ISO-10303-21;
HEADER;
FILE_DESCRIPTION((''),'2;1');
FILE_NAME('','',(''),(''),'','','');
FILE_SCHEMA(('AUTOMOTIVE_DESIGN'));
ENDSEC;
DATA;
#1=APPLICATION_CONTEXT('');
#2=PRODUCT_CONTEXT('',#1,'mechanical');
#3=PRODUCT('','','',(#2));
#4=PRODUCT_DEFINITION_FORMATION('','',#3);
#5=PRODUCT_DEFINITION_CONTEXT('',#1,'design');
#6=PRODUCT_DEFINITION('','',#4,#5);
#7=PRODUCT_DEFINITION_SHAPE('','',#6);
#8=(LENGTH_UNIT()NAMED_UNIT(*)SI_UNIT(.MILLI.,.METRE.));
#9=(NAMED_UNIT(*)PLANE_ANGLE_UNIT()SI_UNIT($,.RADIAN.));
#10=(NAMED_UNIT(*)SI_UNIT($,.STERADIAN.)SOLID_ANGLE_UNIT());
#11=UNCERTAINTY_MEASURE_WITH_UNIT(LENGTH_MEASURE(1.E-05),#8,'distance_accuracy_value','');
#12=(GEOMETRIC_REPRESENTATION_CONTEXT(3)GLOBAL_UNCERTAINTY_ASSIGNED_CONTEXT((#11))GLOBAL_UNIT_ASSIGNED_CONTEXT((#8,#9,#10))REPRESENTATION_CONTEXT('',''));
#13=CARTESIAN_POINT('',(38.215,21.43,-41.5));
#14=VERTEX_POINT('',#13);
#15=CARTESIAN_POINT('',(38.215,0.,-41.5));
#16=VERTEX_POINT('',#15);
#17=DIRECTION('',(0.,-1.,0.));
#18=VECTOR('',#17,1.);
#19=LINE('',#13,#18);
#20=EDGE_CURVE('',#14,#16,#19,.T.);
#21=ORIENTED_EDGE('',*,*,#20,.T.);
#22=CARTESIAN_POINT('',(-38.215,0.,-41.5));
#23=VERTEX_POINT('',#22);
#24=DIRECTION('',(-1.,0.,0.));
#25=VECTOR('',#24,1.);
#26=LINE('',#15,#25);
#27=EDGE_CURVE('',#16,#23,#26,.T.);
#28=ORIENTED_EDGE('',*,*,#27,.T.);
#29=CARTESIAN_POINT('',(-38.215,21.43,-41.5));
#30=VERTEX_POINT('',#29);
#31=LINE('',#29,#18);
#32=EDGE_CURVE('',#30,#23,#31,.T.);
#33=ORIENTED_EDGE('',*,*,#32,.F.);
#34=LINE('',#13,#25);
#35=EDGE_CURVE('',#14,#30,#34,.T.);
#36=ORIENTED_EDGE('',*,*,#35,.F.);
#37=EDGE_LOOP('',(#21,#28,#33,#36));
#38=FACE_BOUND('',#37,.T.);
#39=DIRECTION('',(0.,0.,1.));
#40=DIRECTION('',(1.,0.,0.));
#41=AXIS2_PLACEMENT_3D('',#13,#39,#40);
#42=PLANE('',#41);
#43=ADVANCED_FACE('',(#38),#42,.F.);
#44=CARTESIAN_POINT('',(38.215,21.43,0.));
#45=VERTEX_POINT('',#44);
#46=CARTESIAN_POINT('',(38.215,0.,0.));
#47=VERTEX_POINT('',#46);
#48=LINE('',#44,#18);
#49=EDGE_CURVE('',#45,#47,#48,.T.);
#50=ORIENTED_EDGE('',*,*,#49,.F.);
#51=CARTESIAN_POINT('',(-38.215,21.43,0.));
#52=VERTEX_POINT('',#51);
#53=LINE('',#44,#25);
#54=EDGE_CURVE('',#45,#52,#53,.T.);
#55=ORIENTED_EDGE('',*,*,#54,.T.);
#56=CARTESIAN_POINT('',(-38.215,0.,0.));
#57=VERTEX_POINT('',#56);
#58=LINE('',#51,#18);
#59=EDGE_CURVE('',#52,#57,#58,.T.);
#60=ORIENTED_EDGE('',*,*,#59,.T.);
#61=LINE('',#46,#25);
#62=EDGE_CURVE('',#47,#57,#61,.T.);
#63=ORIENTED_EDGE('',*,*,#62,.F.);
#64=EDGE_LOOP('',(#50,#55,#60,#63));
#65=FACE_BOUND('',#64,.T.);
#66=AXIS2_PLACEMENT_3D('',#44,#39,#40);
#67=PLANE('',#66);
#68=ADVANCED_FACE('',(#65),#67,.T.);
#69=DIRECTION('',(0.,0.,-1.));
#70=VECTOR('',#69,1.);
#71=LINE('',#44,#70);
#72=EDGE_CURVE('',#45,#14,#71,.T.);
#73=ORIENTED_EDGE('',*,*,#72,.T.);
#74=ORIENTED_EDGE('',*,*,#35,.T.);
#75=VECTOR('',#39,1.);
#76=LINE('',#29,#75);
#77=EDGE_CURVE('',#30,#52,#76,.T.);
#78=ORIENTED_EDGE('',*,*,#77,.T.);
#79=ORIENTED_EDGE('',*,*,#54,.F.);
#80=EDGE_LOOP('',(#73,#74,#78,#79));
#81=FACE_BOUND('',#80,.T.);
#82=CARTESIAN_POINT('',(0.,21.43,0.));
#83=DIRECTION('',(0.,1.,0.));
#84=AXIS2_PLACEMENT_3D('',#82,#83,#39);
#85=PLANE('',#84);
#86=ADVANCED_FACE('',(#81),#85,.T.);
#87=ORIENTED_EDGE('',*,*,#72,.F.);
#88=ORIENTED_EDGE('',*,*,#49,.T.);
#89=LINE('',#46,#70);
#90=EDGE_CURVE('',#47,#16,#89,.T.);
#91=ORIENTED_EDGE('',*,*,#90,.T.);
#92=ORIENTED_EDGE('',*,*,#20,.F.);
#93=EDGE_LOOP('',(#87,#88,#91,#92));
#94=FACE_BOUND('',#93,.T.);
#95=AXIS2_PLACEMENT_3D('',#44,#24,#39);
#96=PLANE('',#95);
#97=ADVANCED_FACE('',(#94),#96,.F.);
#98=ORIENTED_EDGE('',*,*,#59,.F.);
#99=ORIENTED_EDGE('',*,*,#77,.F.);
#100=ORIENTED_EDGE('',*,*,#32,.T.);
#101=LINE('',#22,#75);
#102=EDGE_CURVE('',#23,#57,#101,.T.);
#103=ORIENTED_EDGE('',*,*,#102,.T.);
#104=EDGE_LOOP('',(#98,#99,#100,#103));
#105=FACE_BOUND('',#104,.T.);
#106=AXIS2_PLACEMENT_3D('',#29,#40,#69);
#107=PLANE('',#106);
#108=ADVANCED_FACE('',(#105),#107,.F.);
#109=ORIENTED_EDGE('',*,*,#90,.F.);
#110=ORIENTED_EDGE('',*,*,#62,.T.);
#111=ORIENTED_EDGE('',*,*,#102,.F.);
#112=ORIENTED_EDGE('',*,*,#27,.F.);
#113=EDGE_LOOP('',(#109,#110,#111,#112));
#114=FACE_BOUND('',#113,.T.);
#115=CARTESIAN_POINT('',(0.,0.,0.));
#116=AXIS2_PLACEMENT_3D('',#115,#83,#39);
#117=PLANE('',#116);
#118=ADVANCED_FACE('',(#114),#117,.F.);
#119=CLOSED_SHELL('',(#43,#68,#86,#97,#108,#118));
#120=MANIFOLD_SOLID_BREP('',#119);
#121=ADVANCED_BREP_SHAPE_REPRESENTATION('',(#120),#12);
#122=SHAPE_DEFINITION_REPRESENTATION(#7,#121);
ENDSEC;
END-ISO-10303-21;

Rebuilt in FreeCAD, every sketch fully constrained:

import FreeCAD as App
import Part
import Sketcher

V = App.Vector
Q = App.Units.Quantity

doc = App.newDocument("Part")
body = doc.addObject("PartDesign::Body", "Body")

# Sketch on XZ plane
sketch1 = body.newObject("Sketcher::SketchObject", "Sketch")
sketch1.AttachmentSupport = (doc.getObject("XZ_Plane"), [""])
sketch1.MapMode = "FlatFace"
sketch1.addGeometry([
    Part.LineSegment(V(-38, -42, 0), V(-38, 0, 0)),
    Part.LineSegment(V(-38, 0, 0), V(38, 0, 0)),
    Part.LineSegment(V(38, 0, 0), V(38, -42, 0)),
    Part.LineSegment(V(38, -42, 0), V(-38, -42, 0)),
], False)
sketch1.addConstraint([
    Sketcher.Constraint("Coincident", 0, 2, 1, 1),
    Sketcher.Constraint("Coincident", 1, 2, 2, 1),
    Sketcher.Constraint("Coincident", 2, 2, 3, 1),
    Sketcher.Constraint("Coincident", 3, 2, 0, 1),
    Sketcher.Constraint("Vertical", 0),
    Sketcher.Constraint("Horizontal", 1),
    Sketcher.Constraint("Vertical", 2),
    Sketcher.Constraint("Horizontal", 3),
    Sketcher.Constraint("Symmetric", 0, 2, 1, 2, -1, 1),
    Sketcher.Constraint("DistanceY", 0, 1, 0, 2, Q("41.5 mm")),
    Sketcher.Constraint("DistanceX", 1, 1, 1, 2, Q("76.43 mm")),
])
pad1 = body.newObject("PartDesign::Pad", "Pad")
pad1.Profile = sketch1
pad1.Length = 21.43
pad1.Reversed = True

doc.recompute()
